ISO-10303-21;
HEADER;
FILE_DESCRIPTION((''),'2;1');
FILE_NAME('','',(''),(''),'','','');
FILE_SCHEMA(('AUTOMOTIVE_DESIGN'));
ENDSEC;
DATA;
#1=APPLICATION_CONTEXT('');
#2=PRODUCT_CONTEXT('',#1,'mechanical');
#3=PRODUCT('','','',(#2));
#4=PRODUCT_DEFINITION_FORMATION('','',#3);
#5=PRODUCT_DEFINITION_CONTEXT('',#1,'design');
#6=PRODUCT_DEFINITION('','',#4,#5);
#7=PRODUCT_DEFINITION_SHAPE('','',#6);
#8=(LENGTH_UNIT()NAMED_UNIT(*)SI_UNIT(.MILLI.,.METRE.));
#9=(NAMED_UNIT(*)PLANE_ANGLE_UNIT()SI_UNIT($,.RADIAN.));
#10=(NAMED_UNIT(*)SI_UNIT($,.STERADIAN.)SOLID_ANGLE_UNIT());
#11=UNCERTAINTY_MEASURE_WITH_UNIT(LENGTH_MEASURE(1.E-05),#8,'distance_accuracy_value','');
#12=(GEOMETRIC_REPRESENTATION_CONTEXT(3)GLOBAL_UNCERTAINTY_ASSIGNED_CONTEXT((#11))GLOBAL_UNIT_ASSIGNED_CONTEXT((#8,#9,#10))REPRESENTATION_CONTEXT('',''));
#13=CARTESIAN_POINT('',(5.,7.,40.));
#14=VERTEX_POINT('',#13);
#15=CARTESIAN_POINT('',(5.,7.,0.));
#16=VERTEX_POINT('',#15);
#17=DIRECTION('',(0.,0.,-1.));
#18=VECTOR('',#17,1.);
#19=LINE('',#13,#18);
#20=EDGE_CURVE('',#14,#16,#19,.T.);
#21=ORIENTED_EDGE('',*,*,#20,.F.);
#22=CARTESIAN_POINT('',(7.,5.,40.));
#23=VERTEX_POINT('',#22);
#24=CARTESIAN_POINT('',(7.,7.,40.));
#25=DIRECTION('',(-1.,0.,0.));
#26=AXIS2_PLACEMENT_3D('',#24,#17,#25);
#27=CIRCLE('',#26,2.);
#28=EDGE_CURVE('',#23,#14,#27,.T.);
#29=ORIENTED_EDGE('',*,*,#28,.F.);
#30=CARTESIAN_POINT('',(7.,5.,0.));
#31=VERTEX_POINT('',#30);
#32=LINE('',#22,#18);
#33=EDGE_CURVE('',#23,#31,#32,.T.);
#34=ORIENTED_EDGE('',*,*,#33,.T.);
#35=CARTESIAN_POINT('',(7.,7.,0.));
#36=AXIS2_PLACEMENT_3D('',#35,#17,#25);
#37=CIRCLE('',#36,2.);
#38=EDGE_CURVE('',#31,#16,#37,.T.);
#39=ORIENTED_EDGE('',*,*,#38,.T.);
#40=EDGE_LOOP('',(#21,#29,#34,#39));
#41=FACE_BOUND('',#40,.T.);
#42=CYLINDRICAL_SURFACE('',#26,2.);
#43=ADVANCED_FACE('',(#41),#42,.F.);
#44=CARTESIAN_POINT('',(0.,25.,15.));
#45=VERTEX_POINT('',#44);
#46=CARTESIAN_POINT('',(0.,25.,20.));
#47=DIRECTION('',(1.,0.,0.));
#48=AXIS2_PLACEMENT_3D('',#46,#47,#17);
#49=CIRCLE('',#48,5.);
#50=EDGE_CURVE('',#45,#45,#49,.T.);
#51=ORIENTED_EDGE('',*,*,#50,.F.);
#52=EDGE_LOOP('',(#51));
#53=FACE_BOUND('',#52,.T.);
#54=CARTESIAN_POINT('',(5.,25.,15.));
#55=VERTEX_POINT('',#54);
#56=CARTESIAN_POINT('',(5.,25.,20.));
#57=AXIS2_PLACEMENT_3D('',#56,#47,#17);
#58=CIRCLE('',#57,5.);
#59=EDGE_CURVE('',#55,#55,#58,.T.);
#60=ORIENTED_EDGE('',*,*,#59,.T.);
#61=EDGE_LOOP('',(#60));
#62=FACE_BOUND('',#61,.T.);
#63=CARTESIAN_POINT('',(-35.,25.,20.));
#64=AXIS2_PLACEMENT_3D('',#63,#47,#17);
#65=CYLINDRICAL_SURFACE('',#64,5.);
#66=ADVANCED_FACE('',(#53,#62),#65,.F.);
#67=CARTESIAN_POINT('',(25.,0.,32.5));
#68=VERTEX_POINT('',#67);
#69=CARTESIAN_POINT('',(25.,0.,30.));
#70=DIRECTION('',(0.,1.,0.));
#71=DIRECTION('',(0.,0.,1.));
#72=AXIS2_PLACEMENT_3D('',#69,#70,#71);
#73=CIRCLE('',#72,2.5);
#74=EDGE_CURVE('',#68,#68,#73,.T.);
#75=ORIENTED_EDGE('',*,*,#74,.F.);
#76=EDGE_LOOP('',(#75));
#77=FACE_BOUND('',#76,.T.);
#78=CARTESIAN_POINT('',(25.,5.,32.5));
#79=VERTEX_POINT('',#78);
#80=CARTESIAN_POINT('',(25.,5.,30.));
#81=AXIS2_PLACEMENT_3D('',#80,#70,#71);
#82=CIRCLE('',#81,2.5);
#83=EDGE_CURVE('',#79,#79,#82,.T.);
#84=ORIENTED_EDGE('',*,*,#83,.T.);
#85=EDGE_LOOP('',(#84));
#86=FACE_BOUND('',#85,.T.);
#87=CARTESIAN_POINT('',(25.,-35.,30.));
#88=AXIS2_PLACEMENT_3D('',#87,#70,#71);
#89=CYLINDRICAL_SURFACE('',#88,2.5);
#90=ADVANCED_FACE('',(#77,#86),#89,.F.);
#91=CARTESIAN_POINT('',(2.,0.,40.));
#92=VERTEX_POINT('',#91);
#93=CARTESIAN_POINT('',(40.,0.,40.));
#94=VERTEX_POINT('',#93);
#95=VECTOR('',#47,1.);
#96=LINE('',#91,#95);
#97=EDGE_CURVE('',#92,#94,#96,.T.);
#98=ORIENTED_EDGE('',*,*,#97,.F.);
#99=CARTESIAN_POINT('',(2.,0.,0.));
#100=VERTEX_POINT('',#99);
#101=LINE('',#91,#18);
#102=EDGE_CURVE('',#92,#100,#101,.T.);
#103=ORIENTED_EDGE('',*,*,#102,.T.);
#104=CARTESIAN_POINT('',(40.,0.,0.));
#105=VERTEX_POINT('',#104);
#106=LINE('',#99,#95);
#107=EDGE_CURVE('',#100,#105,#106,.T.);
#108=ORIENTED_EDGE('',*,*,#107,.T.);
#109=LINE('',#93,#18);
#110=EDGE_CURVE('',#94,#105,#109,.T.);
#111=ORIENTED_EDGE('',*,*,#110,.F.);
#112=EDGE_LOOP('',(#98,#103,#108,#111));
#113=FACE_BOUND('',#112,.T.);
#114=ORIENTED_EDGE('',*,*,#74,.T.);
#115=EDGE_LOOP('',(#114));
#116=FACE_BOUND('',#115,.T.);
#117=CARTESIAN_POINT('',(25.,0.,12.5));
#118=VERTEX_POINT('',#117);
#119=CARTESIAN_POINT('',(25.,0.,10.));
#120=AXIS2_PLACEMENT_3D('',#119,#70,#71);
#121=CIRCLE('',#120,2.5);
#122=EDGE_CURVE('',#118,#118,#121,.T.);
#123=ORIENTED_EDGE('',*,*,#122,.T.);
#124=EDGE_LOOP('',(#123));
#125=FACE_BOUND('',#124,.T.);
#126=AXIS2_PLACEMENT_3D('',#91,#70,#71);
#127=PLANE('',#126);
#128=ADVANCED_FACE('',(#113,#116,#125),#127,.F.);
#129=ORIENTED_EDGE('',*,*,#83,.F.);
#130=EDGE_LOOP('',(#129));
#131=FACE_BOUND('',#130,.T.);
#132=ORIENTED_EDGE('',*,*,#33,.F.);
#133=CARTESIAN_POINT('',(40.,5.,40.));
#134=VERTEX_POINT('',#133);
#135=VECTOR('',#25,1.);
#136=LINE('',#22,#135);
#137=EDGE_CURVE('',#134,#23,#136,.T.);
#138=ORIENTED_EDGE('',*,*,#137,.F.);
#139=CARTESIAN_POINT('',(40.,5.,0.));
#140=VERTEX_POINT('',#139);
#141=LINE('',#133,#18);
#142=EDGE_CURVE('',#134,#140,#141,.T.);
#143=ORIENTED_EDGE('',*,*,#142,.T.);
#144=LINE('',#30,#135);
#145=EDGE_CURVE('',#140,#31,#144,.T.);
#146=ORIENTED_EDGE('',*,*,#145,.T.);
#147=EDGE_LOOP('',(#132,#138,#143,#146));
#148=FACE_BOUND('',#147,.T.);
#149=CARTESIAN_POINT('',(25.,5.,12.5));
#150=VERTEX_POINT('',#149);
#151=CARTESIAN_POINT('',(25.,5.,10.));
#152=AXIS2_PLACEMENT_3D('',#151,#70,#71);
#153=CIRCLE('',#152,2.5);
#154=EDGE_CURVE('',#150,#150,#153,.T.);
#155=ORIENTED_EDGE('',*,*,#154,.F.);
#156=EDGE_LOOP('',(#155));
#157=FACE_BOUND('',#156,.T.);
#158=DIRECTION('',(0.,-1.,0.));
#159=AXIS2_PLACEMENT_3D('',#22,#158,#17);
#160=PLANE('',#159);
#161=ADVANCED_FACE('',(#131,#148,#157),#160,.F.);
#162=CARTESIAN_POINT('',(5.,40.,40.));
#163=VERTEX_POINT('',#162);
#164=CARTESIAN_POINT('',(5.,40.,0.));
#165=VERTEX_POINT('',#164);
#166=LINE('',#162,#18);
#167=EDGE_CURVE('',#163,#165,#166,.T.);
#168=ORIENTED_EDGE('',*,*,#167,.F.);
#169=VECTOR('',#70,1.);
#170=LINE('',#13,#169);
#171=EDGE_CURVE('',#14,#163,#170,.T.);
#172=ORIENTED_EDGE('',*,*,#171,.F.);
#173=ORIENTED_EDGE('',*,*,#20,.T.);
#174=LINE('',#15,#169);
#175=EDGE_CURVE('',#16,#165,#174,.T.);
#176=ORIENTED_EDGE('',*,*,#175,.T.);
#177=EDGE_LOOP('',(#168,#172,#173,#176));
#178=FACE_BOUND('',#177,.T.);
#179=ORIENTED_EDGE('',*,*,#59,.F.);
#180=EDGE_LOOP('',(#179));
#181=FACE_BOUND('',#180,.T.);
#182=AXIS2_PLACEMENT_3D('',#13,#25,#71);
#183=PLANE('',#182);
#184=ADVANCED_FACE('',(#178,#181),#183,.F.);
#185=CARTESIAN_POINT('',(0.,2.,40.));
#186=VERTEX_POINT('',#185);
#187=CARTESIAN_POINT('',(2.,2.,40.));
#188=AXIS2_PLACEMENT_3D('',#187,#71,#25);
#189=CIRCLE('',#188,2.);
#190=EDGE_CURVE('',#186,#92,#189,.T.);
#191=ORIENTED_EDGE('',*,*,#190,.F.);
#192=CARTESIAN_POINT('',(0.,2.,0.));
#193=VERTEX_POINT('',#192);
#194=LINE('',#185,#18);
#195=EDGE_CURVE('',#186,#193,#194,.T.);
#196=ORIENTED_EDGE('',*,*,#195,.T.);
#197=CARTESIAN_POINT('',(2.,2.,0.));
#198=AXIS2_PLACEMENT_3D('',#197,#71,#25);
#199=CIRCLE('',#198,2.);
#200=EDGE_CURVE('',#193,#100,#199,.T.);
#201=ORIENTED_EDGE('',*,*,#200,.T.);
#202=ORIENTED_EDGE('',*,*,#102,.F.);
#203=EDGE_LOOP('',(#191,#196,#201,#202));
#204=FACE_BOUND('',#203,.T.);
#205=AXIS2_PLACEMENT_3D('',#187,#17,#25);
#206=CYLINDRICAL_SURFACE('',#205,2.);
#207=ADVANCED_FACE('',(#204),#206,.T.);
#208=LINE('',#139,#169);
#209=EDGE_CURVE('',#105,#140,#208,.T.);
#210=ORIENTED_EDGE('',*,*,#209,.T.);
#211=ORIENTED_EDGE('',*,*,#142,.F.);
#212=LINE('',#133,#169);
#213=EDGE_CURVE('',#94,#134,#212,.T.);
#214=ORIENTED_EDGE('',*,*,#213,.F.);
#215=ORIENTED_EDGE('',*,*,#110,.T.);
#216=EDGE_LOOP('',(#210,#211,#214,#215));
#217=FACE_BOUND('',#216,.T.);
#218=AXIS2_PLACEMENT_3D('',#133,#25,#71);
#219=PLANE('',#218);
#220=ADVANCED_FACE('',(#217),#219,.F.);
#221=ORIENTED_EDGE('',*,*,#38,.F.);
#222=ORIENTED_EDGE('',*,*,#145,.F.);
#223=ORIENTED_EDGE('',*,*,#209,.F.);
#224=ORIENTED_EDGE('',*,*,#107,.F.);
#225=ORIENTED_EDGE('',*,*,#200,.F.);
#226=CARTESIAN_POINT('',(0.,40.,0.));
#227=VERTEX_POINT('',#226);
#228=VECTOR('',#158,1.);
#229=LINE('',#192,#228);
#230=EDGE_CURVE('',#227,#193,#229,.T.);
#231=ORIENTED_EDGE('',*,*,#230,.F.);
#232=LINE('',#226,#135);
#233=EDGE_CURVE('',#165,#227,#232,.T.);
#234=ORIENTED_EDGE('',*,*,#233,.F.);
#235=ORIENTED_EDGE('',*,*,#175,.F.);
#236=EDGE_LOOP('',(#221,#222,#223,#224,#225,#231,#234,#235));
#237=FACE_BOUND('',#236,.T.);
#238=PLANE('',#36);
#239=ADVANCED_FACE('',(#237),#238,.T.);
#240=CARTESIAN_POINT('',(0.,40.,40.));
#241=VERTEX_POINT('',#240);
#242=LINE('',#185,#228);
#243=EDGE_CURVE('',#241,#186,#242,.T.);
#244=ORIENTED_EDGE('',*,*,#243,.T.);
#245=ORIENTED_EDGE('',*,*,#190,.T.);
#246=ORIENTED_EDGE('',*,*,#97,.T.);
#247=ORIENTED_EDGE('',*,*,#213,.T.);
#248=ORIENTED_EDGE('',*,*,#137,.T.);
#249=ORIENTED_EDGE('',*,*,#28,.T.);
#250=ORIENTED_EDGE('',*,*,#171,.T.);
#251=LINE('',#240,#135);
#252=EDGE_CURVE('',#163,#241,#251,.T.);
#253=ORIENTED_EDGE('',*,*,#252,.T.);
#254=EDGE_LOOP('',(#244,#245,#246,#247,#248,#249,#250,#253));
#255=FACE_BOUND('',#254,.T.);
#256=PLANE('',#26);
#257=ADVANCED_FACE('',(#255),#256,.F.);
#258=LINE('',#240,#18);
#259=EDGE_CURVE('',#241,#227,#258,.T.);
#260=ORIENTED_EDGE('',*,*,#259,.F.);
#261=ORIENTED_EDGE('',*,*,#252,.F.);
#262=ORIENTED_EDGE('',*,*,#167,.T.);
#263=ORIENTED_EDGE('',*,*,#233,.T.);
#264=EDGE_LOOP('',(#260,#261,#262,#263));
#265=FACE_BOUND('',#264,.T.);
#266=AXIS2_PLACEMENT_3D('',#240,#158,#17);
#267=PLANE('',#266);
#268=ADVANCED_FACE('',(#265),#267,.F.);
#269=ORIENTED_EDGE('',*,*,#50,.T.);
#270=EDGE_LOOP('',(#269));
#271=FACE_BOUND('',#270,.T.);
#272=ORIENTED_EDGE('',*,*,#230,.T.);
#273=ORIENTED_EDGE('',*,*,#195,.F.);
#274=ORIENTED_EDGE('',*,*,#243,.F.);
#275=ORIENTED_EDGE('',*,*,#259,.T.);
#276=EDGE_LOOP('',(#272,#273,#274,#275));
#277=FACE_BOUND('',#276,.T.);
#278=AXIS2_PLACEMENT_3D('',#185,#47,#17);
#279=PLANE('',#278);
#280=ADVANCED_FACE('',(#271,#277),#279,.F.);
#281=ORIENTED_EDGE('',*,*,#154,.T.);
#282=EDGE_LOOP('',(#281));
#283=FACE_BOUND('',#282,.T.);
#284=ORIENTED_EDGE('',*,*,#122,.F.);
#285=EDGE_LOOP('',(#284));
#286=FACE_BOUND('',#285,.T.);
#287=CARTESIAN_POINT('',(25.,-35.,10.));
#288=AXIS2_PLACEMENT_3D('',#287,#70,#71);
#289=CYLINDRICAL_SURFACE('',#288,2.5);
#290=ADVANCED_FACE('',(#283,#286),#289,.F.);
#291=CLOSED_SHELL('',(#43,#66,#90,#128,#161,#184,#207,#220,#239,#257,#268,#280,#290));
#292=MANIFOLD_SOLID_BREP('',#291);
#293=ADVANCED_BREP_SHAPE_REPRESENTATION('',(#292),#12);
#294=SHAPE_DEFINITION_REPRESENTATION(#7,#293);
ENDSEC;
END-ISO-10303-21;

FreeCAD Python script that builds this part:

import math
import FreeCAD as App
import Part
import Sketcher

V = App.Vector

doc = App.newDocument("Part")
params = doc.addObject("Spreadsheet::Sheet", "Params")
for row, (alias, value) in enumerate([
    ("sketch1_radius", "2 mm"),
    ("sketch1_width", "38 mm"),
    ("sketch1_width2", "33 mm"),
    ("pad1_length", "40 mm"),
    ("sketch2_diameter", "10 mm"),
    ("pocket1_length", "40 mm"),
    ("sketch3_diameter", "5 mm"),
    ("pocket2_length", "40 mm"),
], start=1):
    params.set(f"A{row}", alias)
    params.set(f"B{row}", "=" + value)
    params.setAlias(f"B{row}", alias)

body = doc.addObject("PartDesign::Body", "Body")

# Sketch on XY plane
sketch1 = doc.addObject("Sketcher::SketchObject", "Sketch")
body.addObject(sketch1)
sketch1.AttachmentSupport = (doc.XY_Plane, [""])
sketch1.MapMode = "FlatFace"
sketch1.addGeometry(Part.LineSegment(V(0, 40, 0), V(0, 2, 0)), False)
sketch1.addGeometry(Part.ArcOfCircle(Part.Circle(V(2, 2, 0), V(0, 0, 1), 2), math.radians(-180), math.radians(-90)), False)
sketch1.addGeometry(Part.LineSegment(V(2, 0, 0), V(40, 0, 0)), False)
sketch1.addGeometry(Part.LineSegment(V(40, 0, 0), V(40, 5, 0)), False)
sketch1.addGeometry(Part.LineSegment(V(40, 5, 0), V(7, 5, 0)), False)
sketch1.addGeometry(Part.ArcOfCircle(Part.Circle(V(7, 7, 0), V(0, 0, 1), 2), math.radians(-180), math.radians(-90)), False)
sketch1.addGeometry(Part.LineSegment(V(5, 7, 0), V(5, 40, 0)), False)
sketch1.addGeometry(Part.LineSegment(V(5, 40, 0), V(0, 40, 0)), False)
sketch1.addConstraint(Sketcher.Constraint("Tangent", 0, 2, 1, 1))
sketch1.addConstraint(Sketcher.Constraint("Tangent", 1, 2, 2, 1))
sketch1.addConstraint(Sketcher.Constraint("Coincident", 2, 2, 3, 1))
sketch1.addConstraint(Sketcher.Constraint("Coincident", 3, 2, 4, 1))
sketch1.addConstraint(Sketcher.Constraint("Tangent", 4, 2, 5, 2))
sketch1.addConstraint(Sketcher.Constraint("Tangent", 5, 1, 6, 1))
sketch1.addConstraint(Sketcher.Constraint("Coincident", 6, 2, 7, 1))
sketch1.addConstraint(Sketcher.Constraint("Coincident", 7, 2, 0, 1))
sketch1.addConstraint(Sketcher.Constraint("Vertical", 0))
sketch1.addConstraint(Sketcher.Constraint("Horizontal", 2))
sketch1.addConstraint(Sketcher.Constraint("Vertical", 3))
sketch1.addConstraint(Sketcher.Constraint("Horizontal", 4))
sketch1.addConstraint(Sketcher.Constraint("Vertical", 6))
sketch1.addConstraint(Sketcher.Constraint("Horizontal", 7))
sketch1.addConstraint(Sketcher.Constraint("Equal", 1, 5))
sketch1.addConstraint(Sketcher.Constraint("PointOnObject", 0, 2, -2))
sketch1.addConstraint(Sketcher.Constraint("PointOnObject", 1, 2, -1))
sketch1.addConstraint(Sketcher.Constraint("Equal", 2, 0))
sketch1.addConstraint(Sketcher.Constraint("Equal", 7, 3))
sketch1.addConstraint(Sketcher.Constraint("Radius", 1, 2.0))
sketch1.addConstraint(Sketcher.Constraint("DistanceX", 2, 1, 2, 2, 38.0))
sketch1.addConstraint(Sketcher.Constraint("DistanceX", 4, 2, 4, 1, 33.0))
sketch1.setExpression("Constraints[19]", "Params.sketch1_radius")
sketch1.setExpression("Constraints[20]", "Params.sketch1_width")
sketch1.setExpression("Constraints[21]", "Params.sketch1_width2")
pad1 = doc.addObject("PartDesign::Pad", "Pad")
body.addObject(pad1)
pad1.Profile = sketch1
pad1.setExpression("Length", "Params.pad1_length")

# Sketch on YZ plane
sketch2 = doc.addObject("Sketcher::SketchObject", "Sketch001")
body.addObject(sketch2)
sketch2.AttachmentSupport = (doc.YZ_Plane, [""])
sketch2.MapMode = "FlatFace"
sketch2.AttachmentOffset = App.Placement(V(0, 0, 5), App.Rotation())
sketch2.addGeometry(Part.Circle(V(25, 20, 0), V(0, 0, 1), 5), False)
sketch2.addConstraint(Sketcher.Constraint("Diameter", 0, 10.0))
sketch2.addConstraint(Sketcher.Constraint("DistanceX", -1, 1, 0, 3, 25.0))
sketch2.addConstraint(Sketcher.Constraint("DistanceY", -1, 1, 0, 3, 20.0))
sketch2.setExpression("Constraints[0]", "Params.sketch2_diameter")
pocket1 = doc.addObject("PartDesign::Pocket", "Pocket")
body.addObject(pocket1)
pocket1.Profile = sketch2
pocket1.setExpression("Length", "Params.pocket1_length")

# Sketch on XZ plane
sketch3 = doc.addObject("Sketcher::SketchObject", "Sketch002")
body.addObject(sketch3)
sketch3.AttachmentSupport = (doc.XZ_Plane, [""])
sketch3.MapMode = "FlatFace"
sketch3.AttachmentOffset = App.Placement(V(0, 0, -5), App.Rotation())
sketch3.addGeometry(Part.Circle(V(25, 10, 0), V(0, 0, 1), 2.5), False)
sketch3.addGeometry(Part.Circle(V(25, 30, 0), V(0, 0, 1), 2.5), False)
sketch3.addConstraint(Sketcher.Constraint("Equal", 0, 1))
sketch3.addConstraint(Sketcher.Constraint("Vertical", 0, 3, 1, 3))
sketch3.addConstraint(Sketcher.Constraint("Diameter", 0, 5.0))
sketch3.addConstraint(Sketcher.Constraint("DistanceX", -1, 1, 0, 3, 25.0))
sketch3.addConstraint(Sketcher.Constraint("DistanceY", -1, 1, 0, 3, 10.0))
sketch3.addConstraint(Sketcher.Constraint("DistanceY", -1, 1, 1, 3, 30.0))
sketch3.setExpression("Constraints[2]", "Params.sketch3_diameter")
pocket2 = doc.addObject("PartDesign::Pocket", "Pocket001")
body.addObject(pocket2)
pocket2.Profile = sketch3
pocket2.setExpression("Length", "Params.pocket2_length")
pocket2.Reversed = True

doc.recompute()
